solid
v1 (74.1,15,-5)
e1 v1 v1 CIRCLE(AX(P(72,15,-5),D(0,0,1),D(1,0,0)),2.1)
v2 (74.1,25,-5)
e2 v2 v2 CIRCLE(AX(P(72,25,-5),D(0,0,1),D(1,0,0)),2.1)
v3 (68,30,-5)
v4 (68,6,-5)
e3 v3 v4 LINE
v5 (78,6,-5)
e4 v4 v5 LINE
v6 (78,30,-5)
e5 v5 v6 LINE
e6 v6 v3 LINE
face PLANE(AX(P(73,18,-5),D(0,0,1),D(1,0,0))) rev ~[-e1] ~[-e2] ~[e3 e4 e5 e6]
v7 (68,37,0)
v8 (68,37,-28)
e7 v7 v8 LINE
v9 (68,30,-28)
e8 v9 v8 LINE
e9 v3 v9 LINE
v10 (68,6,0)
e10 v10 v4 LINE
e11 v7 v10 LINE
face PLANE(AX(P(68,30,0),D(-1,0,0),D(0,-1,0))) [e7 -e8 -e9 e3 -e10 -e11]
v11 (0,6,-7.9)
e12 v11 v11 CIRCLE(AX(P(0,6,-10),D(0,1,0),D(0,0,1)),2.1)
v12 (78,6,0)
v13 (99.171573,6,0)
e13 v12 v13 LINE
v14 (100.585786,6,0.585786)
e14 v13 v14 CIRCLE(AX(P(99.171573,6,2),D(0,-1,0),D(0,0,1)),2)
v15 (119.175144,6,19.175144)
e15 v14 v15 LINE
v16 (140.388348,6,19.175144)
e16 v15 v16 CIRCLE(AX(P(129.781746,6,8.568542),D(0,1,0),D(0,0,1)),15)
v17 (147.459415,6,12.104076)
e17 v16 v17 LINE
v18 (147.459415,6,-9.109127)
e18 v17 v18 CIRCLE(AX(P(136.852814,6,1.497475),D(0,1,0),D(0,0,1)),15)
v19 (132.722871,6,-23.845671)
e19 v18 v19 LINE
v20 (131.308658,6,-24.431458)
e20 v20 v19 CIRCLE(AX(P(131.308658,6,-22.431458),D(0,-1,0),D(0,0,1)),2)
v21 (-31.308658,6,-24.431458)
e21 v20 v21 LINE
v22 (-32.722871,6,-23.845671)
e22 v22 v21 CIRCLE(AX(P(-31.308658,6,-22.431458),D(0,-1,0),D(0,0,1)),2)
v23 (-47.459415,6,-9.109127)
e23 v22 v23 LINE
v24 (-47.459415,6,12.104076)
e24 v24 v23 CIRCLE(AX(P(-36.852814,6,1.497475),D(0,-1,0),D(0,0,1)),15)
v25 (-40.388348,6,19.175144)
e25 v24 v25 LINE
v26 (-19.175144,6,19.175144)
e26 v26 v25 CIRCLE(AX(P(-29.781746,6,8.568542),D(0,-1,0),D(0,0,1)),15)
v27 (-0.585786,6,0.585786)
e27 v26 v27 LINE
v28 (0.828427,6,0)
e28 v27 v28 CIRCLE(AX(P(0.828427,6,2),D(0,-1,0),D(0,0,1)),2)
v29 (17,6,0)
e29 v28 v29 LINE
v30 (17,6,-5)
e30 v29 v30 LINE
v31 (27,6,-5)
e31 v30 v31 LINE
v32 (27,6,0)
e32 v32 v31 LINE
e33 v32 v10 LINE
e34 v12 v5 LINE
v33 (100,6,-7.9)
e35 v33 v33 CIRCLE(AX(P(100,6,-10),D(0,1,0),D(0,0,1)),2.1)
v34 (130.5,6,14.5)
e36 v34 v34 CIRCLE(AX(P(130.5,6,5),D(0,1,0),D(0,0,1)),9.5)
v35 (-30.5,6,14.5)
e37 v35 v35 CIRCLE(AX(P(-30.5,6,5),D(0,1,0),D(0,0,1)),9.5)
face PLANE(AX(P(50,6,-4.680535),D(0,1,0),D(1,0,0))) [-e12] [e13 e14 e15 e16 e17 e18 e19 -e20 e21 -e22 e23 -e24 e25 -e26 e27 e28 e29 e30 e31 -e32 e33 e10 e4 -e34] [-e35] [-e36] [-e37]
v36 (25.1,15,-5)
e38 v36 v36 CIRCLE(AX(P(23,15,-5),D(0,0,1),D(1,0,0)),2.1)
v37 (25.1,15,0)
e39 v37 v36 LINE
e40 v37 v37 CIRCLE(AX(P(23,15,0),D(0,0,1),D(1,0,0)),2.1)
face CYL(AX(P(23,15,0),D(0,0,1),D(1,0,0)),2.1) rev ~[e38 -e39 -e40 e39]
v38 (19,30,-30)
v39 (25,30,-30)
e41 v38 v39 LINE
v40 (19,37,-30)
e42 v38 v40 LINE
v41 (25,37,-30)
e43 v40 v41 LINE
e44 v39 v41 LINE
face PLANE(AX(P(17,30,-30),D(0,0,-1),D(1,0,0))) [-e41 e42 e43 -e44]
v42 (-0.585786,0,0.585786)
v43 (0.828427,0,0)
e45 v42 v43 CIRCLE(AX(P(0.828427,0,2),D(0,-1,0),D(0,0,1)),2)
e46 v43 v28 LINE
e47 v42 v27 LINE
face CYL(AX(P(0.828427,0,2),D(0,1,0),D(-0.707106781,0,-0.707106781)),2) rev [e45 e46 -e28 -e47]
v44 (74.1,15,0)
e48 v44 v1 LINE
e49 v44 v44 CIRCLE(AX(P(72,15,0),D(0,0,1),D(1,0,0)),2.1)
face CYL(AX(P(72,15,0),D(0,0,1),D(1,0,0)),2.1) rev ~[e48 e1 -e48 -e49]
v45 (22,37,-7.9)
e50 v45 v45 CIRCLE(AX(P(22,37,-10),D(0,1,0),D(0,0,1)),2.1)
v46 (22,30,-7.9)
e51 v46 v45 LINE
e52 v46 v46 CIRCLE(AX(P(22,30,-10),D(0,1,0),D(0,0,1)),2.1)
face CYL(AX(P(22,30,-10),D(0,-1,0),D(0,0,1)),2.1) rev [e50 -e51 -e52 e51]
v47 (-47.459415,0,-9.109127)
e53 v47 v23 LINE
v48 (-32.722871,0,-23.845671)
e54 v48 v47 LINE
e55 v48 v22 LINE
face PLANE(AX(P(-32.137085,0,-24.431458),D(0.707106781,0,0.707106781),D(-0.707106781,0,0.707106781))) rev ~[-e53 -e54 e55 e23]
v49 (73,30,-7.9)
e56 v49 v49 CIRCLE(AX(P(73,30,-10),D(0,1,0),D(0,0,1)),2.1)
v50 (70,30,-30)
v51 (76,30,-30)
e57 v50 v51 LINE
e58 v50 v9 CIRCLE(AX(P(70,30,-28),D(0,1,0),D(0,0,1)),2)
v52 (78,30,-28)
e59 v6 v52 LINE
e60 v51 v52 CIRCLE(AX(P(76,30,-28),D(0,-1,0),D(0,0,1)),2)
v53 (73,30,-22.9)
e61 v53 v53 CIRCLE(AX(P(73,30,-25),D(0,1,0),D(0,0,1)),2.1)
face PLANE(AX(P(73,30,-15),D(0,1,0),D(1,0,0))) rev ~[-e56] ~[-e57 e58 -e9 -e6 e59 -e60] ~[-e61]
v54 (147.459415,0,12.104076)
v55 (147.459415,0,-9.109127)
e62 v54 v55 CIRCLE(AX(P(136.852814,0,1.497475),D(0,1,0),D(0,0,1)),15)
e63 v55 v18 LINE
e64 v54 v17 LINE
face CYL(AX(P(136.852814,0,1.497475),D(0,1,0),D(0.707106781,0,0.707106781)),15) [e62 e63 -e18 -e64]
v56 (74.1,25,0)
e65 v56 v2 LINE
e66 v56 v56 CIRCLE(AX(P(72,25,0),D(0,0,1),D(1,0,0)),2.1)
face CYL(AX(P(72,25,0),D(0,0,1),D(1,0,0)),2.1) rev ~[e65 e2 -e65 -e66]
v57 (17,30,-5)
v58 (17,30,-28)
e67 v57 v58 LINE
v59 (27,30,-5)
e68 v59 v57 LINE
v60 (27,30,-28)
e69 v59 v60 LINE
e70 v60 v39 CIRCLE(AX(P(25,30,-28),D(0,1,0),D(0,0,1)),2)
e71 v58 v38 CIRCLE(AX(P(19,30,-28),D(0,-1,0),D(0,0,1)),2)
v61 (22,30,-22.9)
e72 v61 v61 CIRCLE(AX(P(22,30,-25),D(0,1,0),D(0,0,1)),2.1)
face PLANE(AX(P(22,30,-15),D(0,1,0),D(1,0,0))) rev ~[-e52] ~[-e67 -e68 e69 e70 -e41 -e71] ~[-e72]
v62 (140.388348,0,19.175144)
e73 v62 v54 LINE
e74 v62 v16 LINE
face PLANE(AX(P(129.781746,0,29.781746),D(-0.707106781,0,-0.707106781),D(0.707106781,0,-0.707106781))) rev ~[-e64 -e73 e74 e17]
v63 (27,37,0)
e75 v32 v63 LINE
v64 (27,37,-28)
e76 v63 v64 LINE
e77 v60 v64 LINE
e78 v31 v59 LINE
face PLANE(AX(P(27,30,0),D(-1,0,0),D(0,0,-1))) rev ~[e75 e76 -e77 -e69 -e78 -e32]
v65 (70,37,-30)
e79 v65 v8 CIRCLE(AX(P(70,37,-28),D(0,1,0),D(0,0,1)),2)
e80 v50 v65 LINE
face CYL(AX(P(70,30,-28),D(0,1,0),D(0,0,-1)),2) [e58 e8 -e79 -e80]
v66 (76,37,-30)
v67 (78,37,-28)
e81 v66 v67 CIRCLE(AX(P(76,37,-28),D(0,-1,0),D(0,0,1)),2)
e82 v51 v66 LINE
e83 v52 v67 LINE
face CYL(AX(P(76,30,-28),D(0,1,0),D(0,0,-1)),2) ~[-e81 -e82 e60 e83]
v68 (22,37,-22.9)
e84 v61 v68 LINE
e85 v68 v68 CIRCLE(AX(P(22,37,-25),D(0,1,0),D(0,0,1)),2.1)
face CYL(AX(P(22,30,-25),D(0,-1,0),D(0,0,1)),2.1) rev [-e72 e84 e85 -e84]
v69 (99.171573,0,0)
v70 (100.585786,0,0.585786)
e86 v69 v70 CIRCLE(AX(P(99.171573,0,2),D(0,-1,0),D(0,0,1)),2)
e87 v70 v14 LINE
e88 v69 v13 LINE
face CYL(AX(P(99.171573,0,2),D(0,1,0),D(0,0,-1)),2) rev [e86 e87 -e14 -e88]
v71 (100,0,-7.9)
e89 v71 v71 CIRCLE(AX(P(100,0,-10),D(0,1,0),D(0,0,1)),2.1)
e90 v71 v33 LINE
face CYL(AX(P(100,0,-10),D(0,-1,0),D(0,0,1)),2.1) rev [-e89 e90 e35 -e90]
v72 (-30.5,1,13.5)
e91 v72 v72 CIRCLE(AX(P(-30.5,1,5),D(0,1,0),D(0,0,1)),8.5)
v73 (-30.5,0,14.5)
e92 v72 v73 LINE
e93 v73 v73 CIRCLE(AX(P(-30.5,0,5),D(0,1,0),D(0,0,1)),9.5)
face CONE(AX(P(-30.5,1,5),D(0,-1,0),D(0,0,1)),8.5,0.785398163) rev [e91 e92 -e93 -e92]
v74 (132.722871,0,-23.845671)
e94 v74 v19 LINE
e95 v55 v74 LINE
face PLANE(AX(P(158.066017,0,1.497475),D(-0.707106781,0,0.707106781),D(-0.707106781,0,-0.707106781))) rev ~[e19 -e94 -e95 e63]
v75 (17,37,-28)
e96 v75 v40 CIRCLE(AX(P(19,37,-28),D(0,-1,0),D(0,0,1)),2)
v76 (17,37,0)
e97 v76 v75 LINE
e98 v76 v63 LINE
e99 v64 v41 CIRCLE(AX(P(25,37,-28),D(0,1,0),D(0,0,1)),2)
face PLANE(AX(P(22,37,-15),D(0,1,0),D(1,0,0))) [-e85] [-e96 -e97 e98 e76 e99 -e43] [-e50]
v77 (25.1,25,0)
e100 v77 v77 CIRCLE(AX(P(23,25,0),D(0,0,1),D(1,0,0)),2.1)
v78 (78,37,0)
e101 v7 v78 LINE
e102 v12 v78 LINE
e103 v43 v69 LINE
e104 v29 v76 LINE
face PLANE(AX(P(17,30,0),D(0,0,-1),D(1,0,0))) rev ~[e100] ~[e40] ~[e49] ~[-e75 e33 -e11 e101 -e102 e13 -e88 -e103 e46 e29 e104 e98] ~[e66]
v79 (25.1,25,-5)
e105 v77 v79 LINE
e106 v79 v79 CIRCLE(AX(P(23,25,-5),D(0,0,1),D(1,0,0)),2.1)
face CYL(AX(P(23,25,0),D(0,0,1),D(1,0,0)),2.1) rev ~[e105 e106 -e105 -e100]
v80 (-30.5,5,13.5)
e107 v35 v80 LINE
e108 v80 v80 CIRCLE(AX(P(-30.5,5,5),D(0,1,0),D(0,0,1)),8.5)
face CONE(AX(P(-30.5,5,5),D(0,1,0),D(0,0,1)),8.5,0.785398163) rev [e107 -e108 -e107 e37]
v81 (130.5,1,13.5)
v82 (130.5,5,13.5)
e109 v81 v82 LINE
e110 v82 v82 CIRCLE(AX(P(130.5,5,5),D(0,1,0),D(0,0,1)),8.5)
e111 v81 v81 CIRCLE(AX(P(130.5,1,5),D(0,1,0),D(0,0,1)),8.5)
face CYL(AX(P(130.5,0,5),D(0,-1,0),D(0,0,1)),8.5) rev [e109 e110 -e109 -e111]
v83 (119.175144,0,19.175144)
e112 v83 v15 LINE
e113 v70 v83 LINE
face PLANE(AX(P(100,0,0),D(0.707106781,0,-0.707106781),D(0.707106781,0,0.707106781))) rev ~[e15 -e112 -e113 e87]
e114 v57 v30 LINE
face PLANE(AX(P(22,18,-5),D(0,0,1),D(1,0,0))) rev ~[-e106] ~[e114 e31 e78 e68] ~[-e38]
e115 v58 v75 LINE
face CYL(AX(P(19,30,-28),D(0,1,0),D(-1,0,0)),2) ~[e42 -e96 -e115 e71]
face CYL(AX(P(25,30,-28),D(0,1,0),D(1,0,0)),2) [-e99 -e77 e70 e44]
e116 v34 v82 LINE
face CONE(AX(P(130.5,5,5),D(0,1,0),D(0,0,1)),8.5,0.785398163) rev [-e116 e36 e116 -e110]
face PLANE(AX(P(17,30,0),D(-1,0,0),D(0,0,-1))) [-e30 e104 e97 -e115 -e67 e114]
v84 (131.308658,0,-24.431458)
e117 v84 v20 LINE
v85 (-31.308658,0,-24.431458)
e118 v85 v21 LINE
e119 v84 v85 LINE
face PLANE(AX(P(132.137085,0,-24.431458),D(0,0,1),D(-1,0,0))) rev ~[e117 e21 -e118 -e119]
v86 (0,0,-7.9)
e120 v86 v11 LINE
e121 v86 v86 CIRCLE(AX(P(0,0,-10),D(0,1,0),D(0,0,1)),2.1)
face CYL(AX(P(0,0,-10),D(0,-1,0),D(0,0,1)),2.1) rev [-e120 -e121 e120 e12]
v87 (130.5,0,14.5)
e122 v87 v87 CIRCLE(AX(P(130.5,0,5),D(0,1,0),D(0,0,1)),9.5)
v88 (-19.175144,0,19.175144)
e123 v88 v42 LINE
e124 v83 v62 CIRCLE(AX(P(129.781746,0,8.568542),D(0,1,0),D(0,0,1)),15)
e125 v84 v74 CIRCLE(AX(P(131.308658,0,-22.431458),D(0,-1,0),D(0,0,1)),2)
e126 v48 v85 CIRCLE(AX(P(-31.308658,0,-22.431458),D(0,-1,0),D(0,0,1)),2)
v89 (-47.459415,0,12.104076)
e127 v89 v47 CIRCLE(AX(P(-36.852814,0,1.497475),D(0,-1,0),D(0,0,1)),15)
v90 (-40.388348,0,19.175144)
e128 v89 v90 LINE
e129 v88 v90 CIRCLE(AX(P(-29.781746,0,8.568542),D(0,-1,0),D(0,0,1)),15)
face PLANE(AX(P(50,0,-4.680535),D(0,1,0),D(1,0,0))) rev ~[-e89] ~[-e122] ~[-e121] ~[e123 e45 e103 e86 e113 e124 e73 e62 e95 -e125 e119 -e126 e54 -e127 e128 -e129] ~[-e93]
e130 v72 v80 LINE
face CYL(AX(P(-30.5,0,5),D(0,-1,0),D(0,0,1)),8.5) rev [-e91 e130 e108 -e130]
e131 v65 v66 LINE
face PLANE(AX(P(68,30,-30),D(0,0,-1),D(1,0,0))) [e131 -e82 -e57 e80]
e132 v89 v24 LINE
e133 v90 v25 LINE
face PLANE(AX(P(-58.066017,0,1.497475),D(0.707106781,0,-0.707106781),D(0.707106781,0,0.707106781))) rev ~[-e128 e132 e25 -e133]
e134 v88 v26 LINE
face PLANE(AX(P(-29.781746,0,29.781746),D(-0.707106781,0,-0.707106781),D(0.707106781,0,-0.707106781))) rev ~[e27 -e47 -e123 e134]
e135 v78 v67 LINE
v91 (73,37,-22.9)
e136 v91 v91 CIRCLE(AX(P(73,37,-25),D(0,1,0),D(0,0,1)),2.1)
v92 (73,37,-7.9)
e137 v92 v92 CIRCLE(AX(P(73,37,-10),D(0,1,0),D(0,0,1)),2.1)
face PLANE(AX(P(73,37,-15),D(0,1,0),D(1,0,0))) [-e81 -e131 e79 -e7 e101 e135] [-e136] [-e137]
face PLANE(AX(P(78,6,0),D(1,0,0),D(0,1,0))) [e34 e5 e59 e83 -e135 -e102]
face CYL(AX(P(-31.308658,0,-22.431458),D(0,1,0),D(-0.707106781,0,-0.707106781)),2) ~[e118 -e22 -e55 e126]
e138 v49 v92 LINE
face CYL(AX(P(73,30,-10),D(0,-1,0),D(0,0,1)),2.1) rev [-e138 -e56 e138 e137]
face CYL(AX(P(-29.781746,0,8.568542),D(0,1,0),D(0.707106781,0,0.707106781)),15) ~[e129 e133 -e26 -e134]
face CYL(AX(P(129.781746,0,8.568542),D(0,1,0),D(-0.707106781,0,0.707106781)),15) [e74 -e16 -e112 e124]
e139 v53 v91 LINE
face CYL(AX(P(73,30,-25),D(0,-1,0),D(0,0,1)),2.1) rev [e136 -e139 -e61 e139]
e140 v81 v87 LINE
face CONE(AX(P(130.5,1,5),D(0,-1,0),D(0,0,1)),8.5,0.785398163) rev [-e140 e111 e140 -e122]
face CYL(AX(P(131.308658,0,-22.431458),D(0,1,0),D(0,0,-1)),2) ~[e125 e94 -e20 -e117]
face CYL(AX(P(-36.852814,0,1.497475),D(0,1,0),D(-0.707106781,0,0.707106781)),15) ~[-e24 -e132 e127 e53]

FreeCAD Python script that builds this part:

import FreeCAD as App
import Part
import Sketcher


def edges_at(feature, points):
    """Names of the edges that pass closest to the given points."""
    edges = feature.Shape.Edges
    near = lambda p: min(range(len(edges)), key=lambda i: edges[i].distToShape(Part.Vertex(*p))[0])
    return sorted({f"Edge{near(p) + 1}" for p in points})

doc = App.newDocument("Part")
body = doc.addObject("PartDesign::Body", "Body")

# Sketch on XZ plane
sketch1 = doc.addObject("Sketcher::SketchObject", "Sketch")
body.addObject(sketch1)
sketch1.AttachmentSupport = (doc.XZ_Plane, [""])
sketch1.MapMode = "FlatFace"
sketch1.addGeometry([
    Part.LineSegment(App.Vector(0, 0, 0), App.Vector(100, 0, 0)),  # 0
    Part.LineSegment(App.Vector(100, 0, 0), App.Vector(129.8, 29.8, 0)),  # 1
    Part.LineSegment(App.Vector(129.8, 29.8, 0), App.Vector(158.1, 1.5, 0)),  # 2
    Part.LineSegment(App.Vector(158.1, 1.5, 0), App.Vector(132.1, -24.4, 0)),  # 3
    Part.LineSegment(App.Vector(132.1, -24.4, 0), App.Vector(-32.1, -24.4, 0)),  # 4
    Part.LineSegment(App.Vector(-32.1, -24.4, 0), App.Vector(-58.1, 1.5, 0)),  # 5
    Part.LineSegment(App.Vector(-58.1, 1.5, 0), App.Vector(-29.8, 29.8, 0)),  # 6
    Part.LineSegment(App.Vector(-29.8, 29.8, 0), App.Vector(0, 0, 0)),  # 7
    Part.Circle(App.Vector(-30.5, 5, 0), App.Vector(0, 0, 1), 8.5),  # 8
    Part.Circle(App.Vector(130.5, 5, 0), App.Vector(0, 0, 1), 8.5),  # 9
    Part.Circle(App.Vector(0, -10, 0), App.Vector(0, 0, 1), 2.1),  # 10
    Part.Circle(App.Vector(100, -10, 0), App.Vector(0, 0, 1), 2.1),  # 11
], False)
sketch1.addConstraint([
    Sketcher.Constraint("Coincident", 0, 2, 1, 1),
    Sketcher.Constraint("Coincident", 1, 2, 2, 1),
    Sketcher.Constraint("Coincident", 2, 2, 3, 1),
    Sketcher.Constraint("Coincident", 3, 2, 4, 1),
    Sketcher.Constraint("Coincident", 4, 2, 5, 1),
    Sketcher.Constraint("Coincident", 5, 2, 6, 1),
    Sketcher.Constraint("Coincident", 6, 2, 7, 1),
    Sketcher.Constraint("Coincident", 7, 2, 0, 1),
    Sketcher.Constraint("Horizontal", 0),
    Sketcher.Constraint("Horizontal", 4),
    Sketcher.Constraint("Coincident", 7, 2, -1, 1),
    Sketcher.Constraint("Equal", 8, 9),
    Sketcher.Constraint("Equal", 10, 11),
    Sketcher.Constraint("PointOnObject", 10, 3, -2),
    Sketcher.Constraint("Perpendicular", 1, 2),
    Sketcher.Constraint("Perpendicular", 2, 3),
    Sketcher.Constraint("Perpendicular", 3, 5),
    Sketcher.Constraint("Perpendicular", 5, 6),
    Sketcher.Constraint("Perpendicular", 6, 7),
    Sketcher.Constraint("Horizontal", 8, 3, 9, 3),
    Sketcher.Constraint("Horizontal", 10, 3, 11, 3),
    Sketcher.Constraint("Horizontal", 2, 2, 5, 2),
    Sketcher.Constraint("Horizontal", 1, 2, 6, 2),
    Sketcher.Constraint("Vertical", 11, 3, 0, 2),
    Sketcher.Constraint("Equal", 3, 5),
    Sketcher.Constraint("Diameter", 8, 17.0),
    Sketcher.Constraint("Diameter", 10, 4.2),
    Sketcher.Constraint("DistanceX", 0, 1, 0, 2, 100.0),
    Sketcher.Constraint("Distance", 2, 40.0),
    Sketcher.Constraint("DistanceY", -1, 1, 8, 3, 5.0),
    Sketcher.Constraint("DistanceY", 10, 3, -1, 1, 10.0),
    Sketcher.Constraint("DistanceX", 8, 3, 9, 3, 161.0),
    Sketcher.Constraint("DistanceX", 8, 3, -1, 1, 30.5),
    Sketcher.Constraint("DistanceX", 4, 2, 4, 1, 164.27417),
    Sketcher.Constraint("Distance", 1, 42.117749),
])
pad1 = doc.addObject("PartDesign::Pad", "Pad")
body.addObject(pad1)
pad1.Profile = sketch1
pad1.Length = 6
pad1.Reversed = True
doc.recompute()

fillet = doc.addObject("PartDesign::Fillet", "Fillet")
body.addObject(fillet)
fillet.Base = (pad1, edges_at(pad1, [
    (-29.782, 3, 29.782),
    (-58.066, 3, 1.497),
    (158.066, 3, 1.497),
    (129.782, 3, 29.782),
]))
fillet.Radius = 15
doc.recompute()

fillet2 = doc.addObject("PartDesign::Fillet", "Fillet001")
body.addObject(fillet2)
fillet2.Base = (fillet, edges_at(fillet, [(100, 3, 0), (0, 3, 0)]))
fillet2.Radius = 2

# Sketch on XY plane
sketch2 = doc.addObject("Sketcher::SketchObject", "Sketch001")
body.addObject(sketch2)
sketch2.AttachmentSupport = (doc.XY_Plane, [""])
sketch2.MapMode = "FlatFace"
sketch2.addGeometry([
    Part.LineSegment(App.Vector(17, 30, 0), App.Vector(17, 0, 0)),  # 0
    Part.LineSegment(App.Vector(17, 0, 0), App.Vector(27, 0, 0)),  # 1
    Part.LineSegment(App.Vector(27, 0, 0), App.Vector(27, 30, 0)),  # 2
    Part.LineSegment(App.Vector(27, 30, 0), App.Vector(17, 30, 0)),  # 3
    Part.Circle(App.Vector(23, 15, 0), App.Vector(0, 0, 1), 2.1),  # 4
    Part.Circle(App.Vector(23, 25, 0), App.Vector(0, 0, 1), 2.1),  # 5
    Part.LineSegment(App.Vector(68, 30, 0), App.Vector(68, 0, 0)),  # 6
    Part.LineSegment(App.Vector(68, 0, 0), App.Vector(78, 0, 0)),  # 7
    Part.LineSegment(App.Vector(78, 0, 0), App.Vector(78, 30, 0)),  # 8
    Part.LineSegment(App.Vector(78, 30, 0), App.Vector(68, 30, 0)),  # 9
    Part.Circle(App.Vector(72, 15, 0), App.Vector(0, 0, 1), 2.1),  # 10
    Part.Circle(App.Vector(72, 25, 0), App.Vector(0, 0, 1), 2.1),  # 11
], False)
sketch2.addConstraint([
    Sketcher.Constraint("Coincident", 0, 2, 1, 1),
    Sketcher.Constraint("Coincident", 1, 2, 2, 1),
    Sketcher.Constraint("Coincident", 2, 2, 3, 1),
    Sketcher.Constraint("Coincident", 3, 2, 0, 1),
    Sketcher.Constraint("Coincident", 6, 2, 7, 1),
    Sketcher.Constraint("Coincident", 7, 2, 8, 1),
    Sketcher.Constraint("Coincident", 8, 2, 9, 1),
    Sketcher.Constraint("Coincident", 9, 2, 6, 1),
    Sketcher.Constraint("Vertical", 0),
    Sketcher.Constraint("Horizontal", 1),
    Sketcher.Constraint("Vertical", 2),
    Sketcher.Constraint("Horizontal", 3),
    Sketcher.Constraint("Vertical", 6),
    Sketcher.Constraint("Horizontal", 7),
    Sketcher.Constraint("Vertical", 8),
    Sketcher.Constraint("Horizontal", 9),
    Sketcher.Constraint("Equal", 4, 5),
    Sketcher.Constraint("Equal", 5, 10),
    Sketcher.Constraint("Equal", 10, 11),
    Sketcher.Constraint("PointOnObject", 0, 2, -1),
    Sketcher.Constraint("PointOnObject", 6, 2, -1),
    Sketcher.Constraint("Horizontal", 4, 3, 10, 3),
    Sketcher.Constraint("Horizontal", 5, 3, 11, 3),
    Sketcher.Constraint("Horizontal", 3, 2, 8, 2),
    Sketcher.Constraint("Vertical", 4, 3, 5, 3),
    Sketcher.Constraint("Vertical", 10, 3, 11, 3),
    Sketcher.Constraint("Equal", 3, 7),
    Sketcher.Constraint("Diameter", 4, 4.2),
    Sketcher.Constraint("DistanceX", 1, 1, 1, 2, 10.0),
    Sketcher.Constraint("DistanceY", 0, 2, 0, 1, 30.0),
    Sketcher.Constraint("DistanceX", -1, 1, 4, 3, 23.0),
    Sketcher.Constraint("DistanceY", -1, 1, 4, 3, 15.0),
    Sketcher.Constraint("DistanceY", -1, 1, 5, 3, 25.0),
    Sketcher.Constraint("DistanceX", -1, 1, 10, 3, 72.0),
    Sketcher.Constraint("DistanceX", -1, 1, 0, 2, 17.0),
    Sketcher.Constraint("DistanceX", -1, 1, 6, 2, 68.0),
])
pad2 = doc.addObject("PartDesign::Pad", "Pad001")
body.addObject(pad2)
pad2.Profile = sketch2
pad2.Length = 5
pad2.Reversed = True

# Sketch on XZ plane
sketch3 = doc.addObject("Sketcher::SketchObject", "Sketch002")
body.addObject(sketch3)
sketch3.AttachmentSupport = (doc.XZ_Plane, [""])
sketch3.MapMode = "FlatFace"
sketch3.AttachmentOffset = App.Placement(App.Vector(0, 0, -30), App.Rotation())
sketch3.addGeometry([
    Part.LineSegment(App.Vector(17, -30, 0), App.Vector(17, 0, 0)),  # 0
    Part.LineSegment(App.Vector(17, 0, 0), App.Vector(27, 0, 0)),  # 1
    Part.LineSegment(App.Vector(27, 0, 0), App.Vector(27, -30, 0)),  # 2
    Part.LineSegment(App.Vector(27, -30, 0), App.Vector(17, -30, 0)),  # 3
    Part.Circle(App.Vector(22, -10, 0), App.Vector(0, 0, 1), 2.1),  # 4
    Part.Circle(App.Vector(22, -25, 0), App.Vector(0, 0, 1), 2.1),  # 5
    Part.LineSegment(App.Vector(68, -30, 0), App.Vector(68, 0, 0)),  # 6
    Part.LineSegment(App.Vector(68, 0, 0), App.Vector(78, 0, 0)),  # 7
    Part.LineSegment(App.Vector(78, 0, 0), App.Vector(78, -30, 0)),  # 8
    Part.LineSegment(App.Vector(78, -30, 0), App.Vector(68, -30, 0)),  # 9
    Part.Circle(App.Vector(73, -10, 0), App.Vector(0, 0, 1), 2.1),  # 10
    Part.Circle(App.Vector(73, -25, 0), App.Vector(0, 0, 1), 2.1),  # 11
], False)
sketch3.addConstraint([
    Sketcher.Constraint("Coincident", 0, 2, 1, 1),
    Sketcher.Constraint("Coincident", 1, 2, 2, 1),
    Sketcher.Constraint("Coincident", 2, 2, 3, 1),
    Sketcher.Constraint("Coincident", 3, 2, 0, 1),
    Sketcher.Constraint("Coincident", 6, 2, 7, 1),
    Sketcher.Constraint("Coincident", 7, 2, 8, 1),
    Sketcher.Constraint("Coincident", 8, 2, 9, 1),
    Sketcher.Constraint("Coincident", 9, 2, 6, 1),
    Sketcher.Constraint("Vertical", 0),
    Sketcher.Constraint("Horizontal", 1),
    Sketcher.Constraint("Vertical", 2),
    Sketcher.Constraint("Horizontal", 3),
    Sketcher.Constraint("Vertical", 6),
    Sketcher.Constraint("Horizontal", 7),
    Sketcher.Constraint("Vertical", 8),
    Sketcher.Constraint("Horizontal", 9),
    Sketcher.Constraint("Equal", 4, 5),
    Sketcher.Constraint("Equal", 5, 10),
    Sketcher.Constraint("Equal", 10, 11),
    Sketcher.Constraint("PointOnObject", 0, 2, -1),
    Sketcher.Constraint("PointOnObject", 6, 2, -1),
    Sketcher.Constraint("Horizontal", 4, 3, 10, 3),
    Sketcher.Constraint("Horizontal", 5, 3, 11, 3),
    Sketcher.Constraint("Horizontal", 3, 2, 8, 2),
    Sketcher.Constraint("Vertical", 4, 3, 5, 3),
    Sketcher.Constraint("Vertical", 10, 3, 11, 3),
    Sketcher.Constraint("Equal", 3, 7),
    Sketcher.Constraint("Diameter", 4, 4.2),
    Sketcher.Constraint("DistanceX", 1, 1, 1, 2, 10.0),
    Sketcher.Constraint("DistanceY", 0, 1, 0, 2, 30.0),
    Sketcher.Constraint("DistanceX", -1, 1, 4, 3, 22.0),
    Sketcher.Constraint("DistanceY", 4, 3, -1, 1, 10.0),
    Sketcher.Constraint("DistanceY", 5, 3, -1, 1, 25.0),
    Sketcher.Constraint("DistanceX", -1, 1, 10, 3, 73.0),
    Sketcher.Constraint("DistanceX", -1, 1, 0, 2, 17.0),
    Sketcher.Constraint("DistanceX", -1, 1, 6, 2, 68.0),
])
pad3 = doc.addObject("PartDesign::Pad", "Pad002")
body.addObject(pad3)
pad3.Profile = sketch3
pad3.Length = 7
pad3.Reversed = True
doc.recompute()

fillet3 = doc.addObject("PartDesign::Fillet", "Fillet002")
body.addObject(fillet3)
fillet3.Base = (pad3, edges_at(pad3, [
    (27, 33.5, -30),
    (17, 33.5, -30),
    (78, 33.5, -30),
    (68, 33.5, -30),
]))
fillet3.Radius = 2
doc.recompute()

fillet4 = doc.addObject("PartDesign::Fillet", "Fillet003")
body.addObject(fillet4)
fillet4.Base = (fillet3, edges_at(fillet3, [(-32.137, 3, -24.431), (132.137, 3, -24.431)]))
fillet4.Radius = 2
doc.recompute()

chamfer = doc.addObject("PartDesign::Chamfer", "Chamfer")
body.addObject(chamfer)
chamfer.Base = (fillet4, edges_at(fillet4, [
    (-30.5, 0, -3.5),
    (-30.5, 6, -3.5),
    (130.5, 0, -3.5),
    (130.5, 6, -3.5),
]))
chamfer.Size = 1

doc.recompute()
